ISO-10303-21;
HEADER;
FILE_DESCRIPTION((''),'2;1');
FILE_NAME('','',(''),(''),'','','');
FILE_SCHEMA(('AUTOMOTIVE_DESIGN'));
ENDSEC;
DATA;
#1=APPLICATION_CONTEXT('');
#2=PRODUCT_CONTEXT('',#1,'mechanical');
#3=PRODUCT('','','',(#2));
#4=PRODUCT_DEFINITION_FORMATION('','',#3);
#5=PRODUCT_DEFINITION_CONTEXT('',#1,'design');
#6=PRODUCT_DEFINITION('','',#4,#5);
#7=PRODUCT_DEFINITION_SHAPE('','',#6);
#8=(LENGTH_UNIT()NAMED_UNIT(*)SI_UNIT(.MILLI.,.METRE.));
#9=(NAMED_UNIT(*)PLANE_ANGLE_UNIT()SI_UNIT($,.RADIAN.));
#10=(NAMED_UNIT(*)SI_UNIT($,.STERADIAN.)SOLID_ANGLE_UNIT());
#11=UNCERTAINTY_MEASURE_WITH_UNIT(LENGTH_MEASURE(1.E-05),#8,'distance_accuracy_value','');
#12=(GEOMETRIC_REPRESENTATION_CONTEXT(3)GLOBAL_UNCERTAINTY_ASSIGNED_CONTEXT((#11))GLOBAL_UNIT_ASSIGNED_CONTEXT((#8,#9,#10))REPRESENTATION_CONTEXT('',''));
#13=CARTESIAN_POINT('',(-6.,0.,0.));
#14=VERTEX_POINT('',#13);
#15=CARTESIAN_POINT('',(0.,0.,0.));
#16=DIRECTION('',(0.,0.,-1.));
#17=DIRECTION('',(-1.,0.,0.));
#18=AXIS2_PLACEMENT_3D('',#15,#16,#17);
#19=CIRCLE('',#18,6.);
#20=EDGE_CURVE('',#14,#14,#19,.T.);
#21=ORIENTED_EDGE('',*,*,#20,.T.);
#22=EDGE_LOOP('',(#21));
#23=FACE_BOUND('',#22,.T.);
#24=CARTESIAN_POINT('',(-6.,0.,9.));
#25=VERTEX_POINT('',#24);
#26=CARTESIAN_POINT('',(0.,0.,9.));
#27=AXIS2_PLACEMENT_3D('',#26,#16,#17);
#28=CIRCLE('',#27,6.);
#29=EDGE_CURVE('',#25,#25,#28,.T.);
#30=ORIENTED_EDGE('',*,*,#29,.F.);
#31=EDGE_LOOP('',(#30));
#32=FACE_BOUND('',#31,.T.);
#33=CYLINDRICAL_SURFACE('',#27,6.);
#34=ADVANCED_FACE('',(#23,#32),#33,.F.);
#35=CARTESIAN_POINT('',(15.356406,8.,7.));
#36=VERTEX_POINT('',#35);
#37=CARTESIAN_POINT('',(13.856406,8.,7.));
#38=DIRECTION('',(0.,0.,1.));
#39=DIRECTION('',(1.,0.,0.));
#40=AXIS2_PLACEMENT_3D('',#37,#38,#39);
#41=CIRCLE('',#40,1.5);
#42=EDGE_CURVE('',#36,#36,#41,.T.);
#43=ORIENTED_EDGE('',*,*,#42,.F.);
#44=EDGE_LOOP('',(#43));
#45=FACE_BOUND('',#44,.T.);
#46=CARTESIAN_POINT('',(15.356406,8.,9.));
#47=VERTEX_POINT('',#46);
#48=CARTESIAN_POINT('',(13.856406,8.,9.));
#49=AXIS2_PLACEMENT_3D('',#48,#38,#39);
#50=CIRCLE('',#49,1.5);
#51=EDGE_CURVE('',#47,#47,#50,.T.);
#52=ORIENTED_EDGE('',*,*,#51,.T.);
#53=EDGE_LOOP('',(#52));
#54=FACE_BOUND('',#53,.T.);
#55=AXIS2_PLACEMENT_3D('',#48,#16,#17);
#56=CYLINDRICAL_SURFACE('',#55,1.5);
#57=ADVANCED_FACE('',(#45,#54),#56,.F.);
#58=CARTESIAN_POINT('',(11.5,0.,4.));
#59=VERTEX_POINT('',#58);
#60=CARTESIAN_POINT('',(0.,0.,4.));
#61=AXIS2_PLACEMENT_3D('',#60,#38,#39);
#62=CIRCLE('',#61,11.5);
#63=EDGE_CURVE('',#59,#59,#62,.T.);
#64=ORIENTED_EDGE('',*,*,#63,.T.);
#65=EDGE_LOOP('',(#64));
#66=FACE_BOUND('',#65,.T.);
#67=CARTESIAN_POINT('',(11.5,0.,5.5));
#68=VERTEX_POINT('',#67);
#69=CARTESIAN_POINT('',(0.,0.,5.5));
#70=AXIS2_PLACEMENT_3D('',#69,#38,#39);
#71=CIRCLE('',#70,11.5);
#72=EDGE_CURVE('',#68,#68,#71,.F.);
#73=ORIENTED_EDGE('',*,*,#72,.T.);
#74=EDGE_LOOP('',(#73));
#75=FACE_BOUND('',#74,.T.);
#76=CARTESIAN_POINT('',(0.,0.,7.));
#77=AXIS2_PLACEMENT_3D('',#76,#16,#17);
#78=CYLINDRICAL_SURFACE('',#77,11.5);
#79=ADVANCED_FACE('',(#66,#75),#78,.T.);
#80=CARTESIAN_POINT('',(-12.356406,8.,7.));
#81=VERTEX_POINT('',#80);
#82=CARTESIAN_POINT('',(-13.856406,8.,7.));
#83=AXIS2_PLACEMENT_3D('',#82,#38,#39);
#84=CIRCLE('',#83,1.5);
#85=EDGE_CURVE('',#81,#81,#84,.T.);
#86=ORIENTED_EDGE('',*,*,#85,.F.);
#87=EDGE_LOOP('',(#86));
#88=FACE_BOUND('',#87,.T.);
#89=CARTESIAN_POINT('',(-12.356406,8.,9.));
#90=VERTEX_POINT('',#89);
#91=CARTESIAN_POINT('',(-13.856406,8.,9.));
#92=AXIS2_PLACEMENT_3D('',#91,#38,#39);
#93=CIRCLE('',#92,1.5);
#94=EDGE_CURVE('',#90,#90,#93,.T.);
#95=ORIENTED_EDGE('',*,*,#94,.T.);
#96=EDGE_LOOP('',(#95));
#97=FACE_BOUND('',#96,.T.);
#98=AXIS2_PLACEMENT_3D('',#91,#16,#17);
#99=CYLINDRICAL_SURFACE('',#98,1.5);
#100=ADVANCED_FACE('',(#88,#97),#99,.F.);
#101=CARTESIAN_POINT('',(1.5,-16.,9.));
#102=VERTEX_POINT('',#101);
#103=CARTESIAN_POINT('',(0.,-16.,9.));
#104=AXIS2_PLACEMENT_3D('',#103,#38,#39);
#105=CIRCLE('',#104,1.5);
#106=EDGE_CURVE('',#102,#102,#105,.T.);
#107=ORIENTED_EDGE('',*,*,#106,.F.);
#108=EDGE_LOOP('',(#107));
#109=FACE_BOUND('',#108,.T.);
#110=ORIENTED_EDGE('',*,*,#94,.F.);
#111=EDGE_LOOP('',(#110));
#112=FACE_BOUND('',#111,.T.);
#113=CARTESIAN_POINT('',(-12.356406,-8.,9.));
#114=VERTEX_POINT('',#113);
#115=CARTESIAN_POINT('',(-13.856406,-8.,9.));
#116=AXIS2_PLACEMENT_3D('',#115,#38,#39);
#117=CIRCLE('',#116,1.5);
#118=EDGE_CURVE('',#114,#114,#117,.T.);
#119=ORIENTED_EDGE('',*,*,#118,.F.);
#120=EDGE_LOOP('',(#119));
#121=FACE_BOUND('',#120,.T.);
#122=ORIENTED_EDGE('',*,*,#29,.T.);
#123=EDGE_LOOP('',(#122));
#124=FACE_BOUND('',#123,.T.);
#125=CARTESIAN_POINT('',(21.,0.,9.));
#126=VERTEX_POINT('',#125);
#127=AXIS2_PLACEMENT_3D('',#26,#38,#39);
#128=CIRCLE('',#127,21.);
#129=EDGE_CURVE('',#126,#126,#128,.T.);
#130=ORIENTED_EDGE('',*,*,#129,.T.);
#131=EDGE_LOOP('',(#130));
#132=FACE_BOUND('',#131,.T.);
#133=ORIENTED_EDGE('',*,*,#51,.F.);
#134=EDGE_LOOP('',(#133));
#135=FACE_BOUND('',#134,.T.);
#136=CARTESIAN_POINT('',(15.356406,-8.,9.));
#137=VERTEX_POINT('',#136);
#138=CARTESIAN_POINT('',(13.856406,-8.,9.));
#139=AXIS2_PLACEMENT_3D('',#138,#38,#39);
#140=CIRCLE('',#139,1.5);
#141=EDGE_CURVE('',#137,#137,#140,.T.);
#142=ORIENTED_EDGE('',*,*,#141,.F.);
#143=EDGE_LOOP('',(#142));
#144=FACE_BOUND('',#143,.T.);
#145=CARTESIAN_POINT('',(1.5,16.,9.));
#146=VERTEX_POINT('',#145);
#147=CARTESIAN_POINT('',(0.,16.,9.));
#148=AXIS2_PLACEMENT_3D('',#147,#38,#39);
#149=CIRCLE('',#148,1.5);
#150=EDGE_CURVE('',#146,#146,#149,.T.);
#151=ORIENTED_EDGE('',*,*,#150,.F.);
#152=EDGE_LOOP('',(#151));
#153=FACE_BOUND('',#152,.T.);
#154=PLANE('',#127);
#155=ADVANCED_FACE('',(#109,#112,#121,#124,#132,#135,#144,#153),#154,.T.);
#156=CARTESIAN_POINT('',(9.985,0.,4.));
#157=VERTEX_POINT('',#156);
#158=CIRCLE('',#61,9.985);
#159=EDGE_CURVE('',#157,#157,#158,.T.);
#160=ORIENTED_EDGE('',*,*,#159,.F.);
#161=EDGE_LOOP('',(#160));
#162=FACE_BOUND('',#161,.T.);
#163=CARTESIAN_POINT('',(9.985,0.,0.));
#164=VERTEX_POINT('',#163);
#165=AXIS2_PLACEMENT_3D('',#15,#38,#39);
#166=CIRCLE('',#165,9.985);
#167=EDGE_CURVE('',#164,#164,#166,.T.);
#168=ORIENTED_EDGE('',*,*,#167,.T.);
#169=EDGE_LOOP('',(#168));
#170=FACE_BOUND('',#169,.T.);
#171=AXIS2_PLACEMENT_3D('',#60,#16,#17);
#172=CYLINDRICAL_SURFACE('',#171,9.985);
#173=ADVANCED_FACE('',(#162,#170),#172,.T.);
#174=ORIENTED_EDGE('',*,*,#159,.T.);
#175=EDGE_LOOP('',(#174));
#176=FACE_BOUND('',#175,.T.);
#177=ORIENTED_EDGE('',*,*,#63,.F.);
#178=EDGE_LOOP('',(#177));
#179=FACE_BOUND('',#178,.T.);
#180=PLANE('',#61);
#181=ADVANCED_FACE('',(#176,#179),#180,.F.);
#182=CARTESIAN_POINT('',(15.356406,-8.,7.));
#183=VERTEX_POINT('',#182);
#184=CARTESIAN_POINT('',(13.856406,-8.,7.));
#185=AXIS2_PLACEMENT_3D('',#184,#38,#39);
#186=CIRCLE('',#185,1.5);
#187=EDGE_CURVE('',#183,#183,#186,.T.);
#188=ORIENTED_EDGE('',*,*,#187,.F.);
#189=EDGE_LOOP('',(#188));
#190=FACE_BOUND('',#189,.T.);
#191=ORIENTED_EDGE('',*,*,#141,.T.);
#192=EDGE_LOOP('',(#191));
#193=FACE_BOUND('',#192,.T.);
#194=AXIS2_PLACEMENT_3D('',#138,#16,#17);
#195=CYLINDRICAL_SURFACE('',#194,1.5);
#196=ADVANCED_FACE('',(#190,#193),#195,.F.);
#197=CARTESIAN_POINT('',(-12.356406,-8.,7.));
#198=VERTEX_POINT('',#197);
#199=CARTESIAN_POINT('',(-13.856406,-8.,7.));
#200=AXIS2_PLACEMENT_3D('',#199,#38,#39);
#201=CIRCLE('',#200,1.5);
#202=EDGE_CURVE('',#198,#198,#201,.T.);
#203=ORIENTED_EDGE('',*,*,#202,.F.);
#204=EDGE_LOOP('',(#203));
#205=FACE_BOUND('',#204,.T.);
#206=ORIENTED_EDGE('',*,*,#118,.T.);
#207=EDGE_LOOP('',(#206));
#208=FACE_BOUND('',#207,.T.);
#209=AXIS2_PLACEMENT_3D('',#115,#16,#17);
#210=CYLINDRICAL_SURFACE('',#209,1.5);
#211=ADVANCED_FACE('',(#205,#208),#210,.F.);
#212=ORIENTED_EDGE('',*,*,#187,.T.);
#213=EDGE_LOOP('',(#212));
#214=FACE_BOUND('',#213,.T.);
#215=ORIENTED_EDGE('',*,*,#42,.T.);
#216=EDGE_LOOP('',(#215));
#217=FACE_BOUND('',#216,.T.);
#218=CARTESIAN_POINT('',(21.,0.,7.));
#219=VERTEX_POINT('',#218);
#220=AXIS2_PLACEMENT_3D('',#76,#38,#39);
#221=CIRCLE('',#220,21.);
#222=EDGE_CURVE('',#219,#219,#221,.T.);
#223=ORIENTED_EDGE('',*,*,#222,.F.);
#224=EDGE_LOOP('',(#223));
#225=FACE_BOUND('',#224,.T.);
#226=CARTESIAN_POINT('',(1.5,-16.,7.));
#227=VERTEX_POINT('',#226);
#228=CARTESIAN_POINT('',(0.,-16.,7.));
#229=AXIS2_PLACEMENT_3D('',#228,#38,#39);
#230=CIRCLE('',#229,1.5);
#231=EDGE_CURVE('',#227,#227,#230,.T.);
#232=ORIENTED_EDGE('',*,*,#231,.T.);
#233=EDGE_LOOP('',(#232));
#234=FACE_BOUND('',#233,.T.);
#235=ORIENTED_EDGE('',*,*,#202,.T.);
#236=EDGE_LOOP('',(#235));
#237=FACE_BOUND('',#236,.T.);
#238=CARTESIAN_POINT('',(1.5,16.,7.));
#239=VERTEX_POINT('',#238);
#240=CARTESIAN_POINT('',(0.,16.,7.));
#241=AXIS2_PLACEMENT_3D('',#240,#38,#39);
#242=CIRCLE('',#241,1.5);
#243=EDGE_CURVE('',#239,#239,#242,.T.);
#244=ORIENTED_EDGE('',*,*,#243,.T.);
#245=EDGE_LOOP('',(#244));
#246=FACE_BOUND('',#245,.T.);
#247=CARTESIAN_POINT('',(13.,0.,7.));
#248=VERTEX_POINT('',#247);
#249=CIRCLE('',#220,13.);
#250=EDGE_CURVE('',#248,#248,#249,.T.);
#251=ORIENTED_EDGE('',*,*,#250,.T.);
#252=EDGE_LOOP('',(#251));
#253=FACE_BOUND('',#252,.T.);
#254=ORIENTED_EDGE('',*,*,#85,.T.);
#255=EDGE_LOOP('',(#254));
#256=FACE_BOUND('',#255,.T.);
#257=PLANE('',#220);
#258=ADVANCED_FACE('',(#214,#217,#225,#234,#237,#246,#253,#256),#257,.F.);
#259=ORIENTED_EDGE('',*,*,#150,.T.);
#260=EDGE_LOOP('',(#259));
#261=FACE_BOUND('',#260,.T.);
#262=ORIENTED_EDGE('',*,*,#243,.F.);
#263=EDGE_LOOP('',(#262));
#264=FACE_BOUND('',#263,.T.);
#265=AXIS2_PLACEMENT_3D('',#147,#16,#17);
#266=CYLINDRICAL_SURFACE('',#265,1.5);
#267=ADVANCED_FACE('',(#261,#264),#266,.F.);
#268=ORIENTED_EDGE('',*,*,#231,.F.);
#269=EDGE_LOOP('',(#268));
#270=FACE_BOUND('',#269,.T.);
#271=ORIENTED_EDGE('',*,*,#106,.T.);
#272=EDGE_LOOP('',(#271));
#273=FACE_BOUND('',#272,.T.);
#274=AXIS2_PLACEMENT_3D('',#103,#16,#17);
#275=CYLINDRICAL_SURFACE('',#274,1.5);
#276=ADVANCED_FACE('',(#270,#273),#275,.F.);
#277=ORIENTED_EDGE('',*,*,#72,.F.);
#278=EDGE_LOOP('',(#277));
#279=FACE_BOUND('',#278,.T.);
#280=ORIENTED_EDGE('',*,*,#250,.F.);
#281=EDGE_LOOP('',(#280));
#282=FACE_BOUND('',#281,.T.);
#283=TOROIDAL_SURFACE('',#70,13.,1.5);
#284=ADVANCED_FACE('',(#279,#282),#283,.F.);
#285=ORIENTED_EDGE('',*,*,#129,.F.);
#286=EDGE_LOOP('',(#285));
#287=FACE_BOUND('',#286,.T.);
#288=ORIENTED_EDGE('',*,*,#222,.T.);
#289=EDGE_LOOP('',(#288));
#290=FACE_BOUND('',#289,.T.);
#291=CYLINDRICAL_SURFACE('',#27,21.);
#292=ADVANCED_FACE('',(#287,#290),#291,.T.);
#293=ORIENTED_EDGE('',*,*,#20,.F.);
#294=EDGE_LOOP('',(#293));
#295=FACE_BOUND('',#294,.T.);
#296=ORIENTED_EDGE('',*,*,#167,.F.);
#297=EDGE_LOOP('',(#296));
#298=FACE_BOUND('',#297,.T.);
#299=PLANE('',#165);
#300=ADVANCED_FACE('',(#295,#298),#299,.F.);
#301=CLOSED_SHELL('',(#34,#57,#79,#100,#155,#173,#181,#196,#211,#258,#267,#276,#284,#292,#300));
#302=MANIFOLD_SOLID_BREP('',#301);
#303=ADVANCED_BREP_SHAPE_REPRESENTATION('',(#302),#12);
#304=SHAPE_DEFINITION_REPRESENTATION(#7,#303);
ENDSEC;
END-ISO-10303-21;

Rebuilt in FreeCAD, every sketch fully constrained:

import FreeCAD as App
import Part
import Sketcher
Q = App.Units.Quantity


def edges_at(feature, points):
    """Names of the edges that pass closest to the given points."""
    edges = feature.Shape.Edges
    near = lambda p: min(range(len(edges)), key=lambda i: edges[i].distToShape(Part.Vertex(*p))[0])
    return sorted({f"Edge{near(p) + 1}" for p in points})

doc = App.newDocument("Part")
params = doc.addObject("Spreadsheet::Sheet", "Params")
for row, (alias, value) in enumerate([
    ("sketch1_diameter", "19.97 mm"),
    ("pad1_length", "4 mm"),
    ("sketch2_diameter", "23 mm"),
    ("pad2_length", "3 mm"),
    ("sketch3_diameter", "42 mm"),
    ("sketch3_diameter2", "3 mm"),
    ("pad3_length", "2 mm"),
    ("sketch4_diameter", "12 mm"),
    ("fillet_radius", "1.5 mm"),
], start=1):
    params.set(f"A{row}", alias)
    params.set(f"B{row}", "=" + value)
    params.setAlias(f"B{row}", alias)

body = doc.addObject("PartDesign::Body", "Body")

# Sketch on XY plane
sketch1 = body.newObject("Sketcher::SketchObject", "Sketch")
sketch1.AttachmentSupport = (doc.getObject("XY_Plane"), [""])
sketch1.MapMode = "FlatFace"
sketch1.addGeometry(Part.Circle(App.Vector(0, 0, 0), App.Vector(0, 0, 1), 10), False)
sketch1.addConstraint(Sketcher.Constraint("Coincident", 0, 3, -1, 1))
sketch1.addConstraint(Sketcher.Constraint("Diameter", 0, Q("19.97 mm")))
sketch1.setExpression("Constraints[1]", "Params.sketch1_diameter")
pad1 = body.newObject("PartDesign::Pad", "Pad")
pad1.Profile = sketch1
pad1.setExpression("Length", "Params.pad1_length")

# Sketch on XY plane
sketch2 = body.newObject("Sketcher::SketchObject", "Sketch001")
sketch2.AttachmentSupport = (doc.getObject("XY_Plane"), [""])
sketch2.MapMode = "FlatFace"
sketch2.AttachmentOffset = App.Placement(App.Vector(0, 0, 4), App.Rotation())
sketch2.addGeometry(Part.Circle(App.Vector(0, 0, 0), App.Vector(0, 0, 1), 12), False)
sketch2.addConstraint(Sketcher.Constraint("Coincident", 0, 3, -1, 1))
sketch2.addConstraint(Sketcher.Constraint("Diameter", 0, Q("23 mm")))
sketch2.setExpression("Constraints[1]", "Params.sketch2_diameter")
pad2 = body.newObject("PartDesign::Pad", "Pad001")
pad2.Profile = sketch2
pad2.setExpression("Length", "Params.pad2_length")

# Sketch on XY plane
sketch3 = body.newObject("Sketcher::SketchObject", "Sketch002")
sketch3.AttachmentSupport = (doc.getObject("XY_Plane"), [""])
sketch3.MapMode = "FlatFace"
sketch3.AttachmentOffset = App.Placement(App.Vector(0, 0, 7), App.Rotation())
sketch3.addGeometry(Part.Circle(App.Vector(0, 0, 0), App.Vector(0, 0, 1), 21), False)
sketch3.addGeometry(Part.Circle(App.Vector(-13.9, -8, 0), App.Vector(0, 0, 1), 1.5), False)
sketch3.addGeometry(Part.Circle(App.Vector(0, -16, 0), App.Vector(0, 0, 1), 1.5), False)
sketch3.addGeometry(Part.Circle(App.Vector(13.9, -8, 0), App.Vector(0, 0, 1), 1.5), False)
sketch3.addGeometry(Part.Circle(App.Vector(-13.9, 8, 0), App.Vector(0, 0, 1), 1.5), False)
sketch3.addGeometry(Part.Circle(App.Vector(13.9, 8, 0), App.Vector(0, 0, 1), 1.5), False)
sketch3.addGeometry(Part.Circle(App.Vector(0, 16, 0), App.Vector(0, 0, 1), 1.5), False)
sketch3.addConstraint(Sketcher.Constraint("Coincident", 0, 3, -1, 1))
sketch3.addConstraint(Sketcher.Constraint("Equal", 1, 2))
sketch3.addConstraint(Sketcher.Constraint("Equal", 2, 3))
sketch3.addConstraint(Sketcher.Constraint("Equal", 3, 4))
sketch3.addConstraint(Sketcher.Constraint("Equal", 4, 5))
sketch3.addConstraint(Sketcher.Constraint("Equal", 5, 6))
sketch3.addConstraint(Sketcher.Constraint("Symmetric", 3, 3, 4, 3, -1, 1))
sketch3.addConstraint(Sketcher.Constraint("Symmetric", 1, 3, 5, 3, -1, 1))
sketch3.addConstraint(Sketcher.Constraint("Symmetric", 2, 3, 6, 3, -1, 1))
sketch3.addConstraint(Sketcher.Constraint("Symmetric", 1, 3, 3, 3, -2))
sketch3.addConstraint(Sketcher.Constraint("PointOnObject", 2, 3, -2))
sketch3.addConstraint(Sketcher.Constraint("Diameter", 0, Q("42 mm")))
sketch3.addConstraint(Sketcher.Constraint("Diameter", 1, Q("3 mm")))
sketch3.addConstraint(Sketcher.Constraint("DistanceY", 1, 3, -1, 1, Q("8 mm")))
sketch3.addConstraint(Sketcher.Constraint("DistanceY", 2, 3, -1, 1, Q("16 mm")))
sketch3.addConstraint(Sketcher.Constraint("DistanceX", 1, 3, -1, 1, Q("13.856406 mm")))
sketch3.setExpression("Constraints[11]", "Params.sketch3_diameter")
sketch3.setExpression("Constraints[12]", "Params.sketch3_diameter2")
pad3 = body.newObject("PartDesign::Pad", "Pad002")
pad3.Profile = sketch3
pad3.setExpression("Length", "Params.pad3_length")

# Sketch on XY plane
sketch4 = body.newObject("Sketcher::SketchObject", "Sketch003")
sketch4.AttachmentSupport = (doc.getObject("XY_Plane"), [""])
sketch4.MapMode = "FlatFace"
sketch4.addGeometry(Part.Circle(App.Vector(0, 0, 0), App.Vector(0, 0, 1), 6), False)
sketch4.addConstraint(Sketcher.Constraint("Coincident", 0, 3, -1, 1))
sketch4.addConstraint(Sketcher.Constraint("Diameter", 0, Q("12 mm")))
sketch4.setExpression("Constraints[1]", "Params.sketch4_diameter")
pocket1 = body.newObject("PartDesign::Pocket", "Pocket")
pocket1.Profile = sketch4
pocket1.Type = "ThroughAll"
pocket1.Reversed = True
doc.recompute()

fillet = body.newObject("PartDesign::Fillet", "Fillet")
fillet.Base = (pocket1, edges_at(pocket1, [(-11.5, 0, 7)]))
fillet.setExpression("Radius", "Params.fillet_radius")

doc.recompute()
